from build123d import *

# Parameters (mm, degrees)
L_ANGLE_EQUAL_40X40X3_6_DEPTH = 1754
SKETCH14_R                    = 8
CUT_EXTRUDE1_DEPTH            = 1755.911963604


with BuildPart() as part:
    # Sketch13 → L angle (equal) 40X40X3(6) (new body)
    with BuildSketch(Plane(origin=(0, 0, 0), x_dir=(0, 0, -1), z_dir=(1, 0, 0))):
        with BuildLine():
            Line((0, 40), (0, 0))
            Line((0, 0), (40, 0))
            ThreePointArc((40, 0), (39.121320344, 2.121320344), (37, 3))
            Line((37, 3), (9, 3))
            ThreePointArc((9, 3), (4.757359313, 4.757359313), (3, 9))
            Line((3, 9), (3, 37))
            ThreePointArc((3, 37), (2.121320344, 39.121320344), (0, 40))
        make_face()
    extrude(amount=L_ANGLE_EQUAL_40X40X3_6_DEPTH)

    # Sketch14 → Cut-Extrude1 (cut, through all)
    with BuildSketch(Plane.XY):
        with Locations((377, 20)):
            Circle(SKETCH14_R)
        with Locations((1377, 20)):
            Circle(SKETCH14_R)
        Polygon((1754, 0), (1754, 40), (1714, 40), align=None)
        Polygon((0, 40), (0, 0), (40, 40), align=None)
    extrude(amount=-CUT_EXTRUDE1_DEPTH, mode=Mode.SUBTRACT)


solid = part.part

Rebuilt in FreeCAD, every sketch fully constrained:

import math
import FreeCAD as App
import Part
import Sketcher

V = App.Vector


def add_polygon(sketch, points):
    """Adds a closed chain of lines whose ends are joined by coincident constraints."""
    first, n = sketch.GeometryCount, len(points)
    for a, b in zip(points, points[1:] + points[:1]):
        sketch.addGeometry(Part.LineSegment(App.Vector(*a, 0), App.Vector(*b, 0)), False)
    for i in range(n):
        sketch.addConstraint(Sketcher.Constraint("Coincident", first + i, 2, first + (i + 1) % n, 1))

doc = App.newDocument("Part")
body = doc.addObject("PartDesign::Body", "Body")

sketch1 = body.newObject("Sketcher::SketchObject", "Sketch")
sketch1.AttachmentSupport = (doc.getObject("YZ_Plane"), [""])
sketch1.MapMode = "FlatFace"
sketch1.addGeometry(Part.LineSegment(V(40, 0, 0), V(0, 0, 0)), False)
sketch1.addGeometry(Part.LineSegment(V(0, 0, 0), V(0, -40, 0)), False)
sketch1.addGeometry(Part.ArcOfCircle(Part.Circle(V(0, -37, 0), V(0, 0, 1), 3), math.radians(-90), math.radians(0)), False)
sketch1.addGeometry(Part.LineSegment(V(3, -37, 0), V(3, -9, 0)), False)
sketch1.addGeometry(Part.ArcOfCircle(Part.Circle(V(9, -9, 0), V(0, 0, 1), 6), math.radians(90), math.radians(180)), False)
sketch1.addGeometry(Part.LineSegment(V(9, -3, 0), V(37, -3, 0)), False)
sketch1.addGeometry(Part.ArcOfCircle(Part.Circle(V(37, 0, 0), V(0, 0, 1), 3), math.radians(-90), math.radians(0)), False)
sketch1.addConstraint(Sketcher.Constraint("Coincident", 0, 2, 1, 1))
sketch1.addConstraint(Sketcher.Constraint("Coincident", 1, 2, 2, 1))
sketch1.addConstraint(Sketcher.Constraint("Tangent", 2, 2, 3, 1))
sketch1.addConstraint(Sketcher.Constraint("Tangent", 3, 2, 4, 2))
sketch1.addConstraint(Sketcher.Constraint("Tangent", 4, 1, 5, 1))
sketch1.addConstraint(Sketcher.Constraint("Tangent", 5, 2, 6, 1))
sketch1.addConstraint(Sketcher.Constraint("Coincident", 6, 2, 0, 1))
sketch1.addConstraint(Sketcher.Constraint("Horizontal", 0))
sketch1.addConstraint(Sketcher.Constraint("Vertical", 1))
sketch1.addConstraint(Sketcher.Constraint("Vertical", 3))
sketch1.addConstraint(Sketcher.Constraint("Horizontal", 5))
sketch1.addConstraint(Sketcher.Constraint("Coincident", 0, 2, -1, 1))
sketch1.addConstraint(Sketcher.Constraint("Equal", 2, 6))
sketch1.addConstraint(Sketcher.Constraint("PointOnObject", 2, 3, -2))
sketch1.addConstraint(Sketcher.Constraint("PointOnObject", 6, 3, -1))
sketch1.addConstraint(Sketcher.Constraint("Equal", 0, 1))
sketch1.addConstraint(Sketcher.Constraint("Radius", 2, 3.0))
sketch1.addConstraint(Sketcher.Constraint("Radius", 4, 6.0))
sketch1.addConstraint(Sketcher.Constraint("DistanceX", 0, 2, 0, 1, 40.0))
pad1 = body.newObject("PartDesign::Pad", "Pad")
pad1.Profile = sketch1
pad1.Length = 1754

sketch2 = body.newObject("Sketcher::SketchObject", "Sketch001")
sketch2.AttachmentSupport = (doc.getObject("XY_Plane"), [""])
sketch2.MapMode = "FlatFace"
sketch2.addGeometry(Part.Circle(V(377, 20, 0), V(0, 0, 1), 8), False)
sketch2.addGeometry(Part.Circle(V(1377, 20, 0), V(0, 0, 1), 8), False)
add_polygon(sketch2, [(1754, 0), (1754, 40), (1714, 40)])
add_polygon(sketch2, [(0, 40), (0, 0), (40, 40)])
sketch2.addConstraint(Sketcher.Constraint("Vertical", 2))
sketch2.addConstraint(Sketcher.Constraint("Horizontal", 3))
sketch2.addConstraint(Sketcher.Constraint("Vertical", 5))
sketch2.addConstraint(Sketcher.Constraint("Horizontal", 7))
sketch2.addConstraint(Sketcher.Constraint("Coincident", 5, 2, -1, 1))
sketch2.addConstraint(Sketcher.Constraint("Equal", 0, 1))
sketch2.addConstraint(Sketcher.Constraint("PointOnObject", 4, 2, -1))
sketch2.addConstraint(Sketcher.Constraint("Perpendicular", 4, 6))
sketch2.addConstraint(Sketcher.Constraint("Horizontal", 0, 3, 1, 3))
sketch2.addConstraint(Sketcher.Constraint("Horizontal", 3, 2, 6, 2))
sketch2.addConstraint(Sketcher.Constraint("Equal", 3, 7))
sketch2.addConstraint(Sketcher.Constraint("Diameter", 0, 16.0))
sketch2.addConstraint(Sketcher.Constraint("DistanceX", 3, 2, 3, 1, 40.0))
sketch2.addConstraint(Sketcher.Constraint("DistanceX", -1, 1, 0, 3, 377.0))
sketch2.addConstraint(Sketcher.Constraint("DistanceY", -1, 1, 0, 3, 20.0))
sketch2.addConstraint(Sketcher.Constraint("DistanceX", -1, 1, 1, 3, 1377.0))
sketch2.addConstraint(Sketcher.Constraint("DistanceX", -1, 1, 2, 2, 1754.0))
pocket1 = body.newObject("PartDesign::Pocket", "Pocket")
pocket1.Profile = sketch2
pocket1.Type = "ThroughAll"

doc.recompute()
